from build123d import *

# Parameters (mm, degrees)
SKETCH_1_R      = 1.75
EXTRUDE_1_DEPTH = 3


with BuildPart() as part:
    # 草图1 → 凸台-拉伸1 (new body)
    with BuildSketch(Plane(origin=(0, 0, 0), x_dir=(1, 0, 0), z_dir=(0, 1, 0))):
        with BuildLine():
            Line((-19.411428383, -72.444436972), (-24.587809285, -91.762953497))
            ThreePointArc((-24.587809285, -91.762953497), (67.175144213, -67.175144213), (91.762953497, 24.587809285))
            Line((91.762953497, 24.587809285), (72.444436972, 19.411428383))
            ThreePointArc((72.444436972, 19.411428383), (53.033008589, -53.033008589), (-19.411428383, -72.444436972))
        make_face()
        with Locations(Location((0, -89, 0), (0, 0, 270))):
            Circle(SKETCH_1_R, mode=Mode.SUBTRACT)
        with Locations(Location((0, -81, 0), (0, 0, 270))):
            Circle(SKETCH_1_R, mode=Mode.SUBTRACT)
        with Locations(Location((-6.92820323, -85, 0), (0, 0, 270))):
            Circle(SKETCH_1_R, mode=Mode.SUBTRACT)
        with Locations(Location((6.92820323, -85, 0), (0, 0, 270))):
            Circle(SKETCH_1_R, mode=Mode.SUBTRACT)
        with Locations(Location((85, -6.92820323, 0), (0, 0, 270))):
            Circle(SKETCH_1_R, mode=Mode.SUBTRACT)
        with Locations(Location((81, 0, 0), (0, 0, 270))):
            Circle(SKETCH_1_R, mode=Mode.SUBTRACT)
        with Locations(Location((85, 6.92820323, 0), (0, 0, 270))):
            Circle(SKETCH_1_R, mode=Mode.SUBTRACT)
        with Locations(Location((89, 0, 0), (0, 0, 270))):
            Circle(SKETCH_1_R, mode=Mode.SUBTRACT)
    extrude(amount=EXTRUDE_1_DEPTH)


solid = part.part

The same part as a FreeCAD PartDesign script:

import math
import FreeCAD as App
import Part
import Sketcher

V = App.Vector
Q = App.Units.Quantity

doc = App.newDocument("Part")
body = doc.addObject("PartDesign::Body", "Body")

sketch1 = body.newObject("Sketcher::SketchObject", "Sketch")
sketch1.AttachmentSupport = (doc.getObject("XZ_Plane"), [""])
sketch1.MapMode = "FlatFace"
sketch1.addGeometry(Part.LineSegment(V(-19.4, 72.4, 0), V(-24.6, 91.8, 0)), False)
sketch1.addGeometry(Part.ArcOfCircle(Part.Circle(V(0, 0, 0), V(0, 0, 1), 95), math.radians(-15), math.radians(105)), False)
sketch1.addGeometry(Part.LineSegment(V(91.8, -24.6, 0), V(72.4, -19.4, 0)), False)
sketch1.addGeometry(Part.ArcOfCircle(Part.Circle(V(0, 0, 0), V(0, 0, 1), 75), math.radians(-15), math.radians(105)), False)
sketch1.addGeometry(Part.Circle(V(-6.9, 85, 0), V(0, 0, 1), 1.8), False)
sketch1.addGeometry(Part.Circle(V(0, 89, 0), V(0, 0, 1), 1.8), False)
sketch1.addGeometry(Part.Circle(V(0, 81, 0), V(0, 0, 1), 1.8), False)
sketch1.addGeometry(Part.Circle(V(6.9, 85, 0), V(0, 0, 1), 1.8), False)
sketch1.addGeometry(Part.Circle(V(85, 6.9, 0), V(0, 0, 1), 1.8), False)
sketch1.addGeometry(Part.Circle(V(81, 0, 0), V(0, 0, 1), 1.8), False)
sketch1.addGeometry(Part.Circle(V(89, 0, 0), V(0, 0, 1), 1.8), False)
sketch1.addGeometry(Part.Circle(V(85, -6.9, 0), V(0, 0, 1), 1.8), False)
sketch1.addConstraint(Sketcher.Constraint("Coincident", 0, 2, 1, 2))
sketch1.addConstraint(Sketcher.Constraint("Coincident", 1, 1, 2, 1))
sketch1.addConstraint(Sketcher.Constraint("Coincident", 2, 2, 3, 1))
sketch1.addConstraint(Sketcher.Constraint("Coincident", 3, 2, 0, 1))
sketch1.addConstraint(Sketcher.Constraint("Coincident", 1, 3, -1, 1))
sketch1.addConstraint(Sketcher.Constraint("Coincident", 3, 3, -1, 1))
sketch1.addConstraint(Sketcher.Constraint("Equal", 4, 5))
sketch1.addConstraint(Sketcher.Constraint("Equal", 5, 6))
sketch1.addConstraint(Sketcher.Constraint("Equal", 6, 7))
sketch1.addConstraint(Sketcher.Constraint("Equal", 7, 8))
sketch1.addConstraint(Sketcher.Constraint("Equal", 8, 9))
sketch1.addConstraint(Sketcher.Constraint("Equal", 9, 10))
sketch1.addConstraint(Sketcher.Constraint("Equal", 10, 11))
sketch1.addConstraint(Sketcher.Constraint("Symmetric", 4, 3, 7, 3, -2))
sketch1.addConstraint(Sketcher.Constraint("Symmetric", 8, 3, 11, 3, -1))
sketch1.addConstraint(Sketcher.Constraint("PointOnObject", 5, 3, -2))
sketch1.addConstraint(Sketcher.Constraint("PointOnObject", 6, 3, -2))
sketch1.addConstraint(Sketcher.Constraint("PointOnObject", 9, 3, -1))
sketch1.addConstraint(Sketcher.Constraint("PointOnObject", 10, 3, -1))
sketch1.addConstraint(Sketcher.Constraint("Radius", 1, 95.0))
sketch1.addConstraint(Sketcher.Constraint("Radius", 3, 75.0))
sketch1.addConstraint(Sketcher.Constraint("Diameter", 4, 3.5))
sketch1.addConstraint(Sketcher.Constraint("Angle", 0, Q("105 deg")))
sketch1.addConstraint(Sketcher.Constraint("Angle", 2, Q("165 deg")))
sketch1.addConstraint(Sketcher.Constraint("DistanceY", -1, 1, 4, 3, 85.0))
sketch1.addConstraint(Sketcher.Constraint("DistanceY", -1, 1, 5, 3, 89.0))
sketch1.addConstraint(Sketcher.Constraint("DistanceY", -1, 1, 6, 3, 81.0))
sketch1.addConstraint(Sketcher.Constraint("DistanceX", -1, 1, 8, 3, 85.0))
sketch1.addConstraint(Sketcher.Constraint("DistanceX", -1, 1, 9, 3, 81.0))
sketch1.addConstraint(Sketcher.Constraint("DistanceX", -1, 1, 10, 3, 89.0))
sketch1.addConstraint(Sketcher.Constraint("DistanceX", 0, 2, -1, 1, 24.587809))
sketch1.addConstraint(Sketcher.Constraint("DistanceY", 1, 1, -1, 1, 24.587809))
sketch1.addConstraint(Sketcher.Constraint("DistanceY", 2, 2, 8, 3, 26.339632))
sketch1.addConstraint(Sketcher.Constraint("DistanceX", 3, 2, 7, 3, 26.339632))
pad1 = body.newObject("PartDesign::Pad", "Pad")
pad1.Profile = sketch1
pad1.Length = 3
pad1.Reversed = True

doc.recompute()
